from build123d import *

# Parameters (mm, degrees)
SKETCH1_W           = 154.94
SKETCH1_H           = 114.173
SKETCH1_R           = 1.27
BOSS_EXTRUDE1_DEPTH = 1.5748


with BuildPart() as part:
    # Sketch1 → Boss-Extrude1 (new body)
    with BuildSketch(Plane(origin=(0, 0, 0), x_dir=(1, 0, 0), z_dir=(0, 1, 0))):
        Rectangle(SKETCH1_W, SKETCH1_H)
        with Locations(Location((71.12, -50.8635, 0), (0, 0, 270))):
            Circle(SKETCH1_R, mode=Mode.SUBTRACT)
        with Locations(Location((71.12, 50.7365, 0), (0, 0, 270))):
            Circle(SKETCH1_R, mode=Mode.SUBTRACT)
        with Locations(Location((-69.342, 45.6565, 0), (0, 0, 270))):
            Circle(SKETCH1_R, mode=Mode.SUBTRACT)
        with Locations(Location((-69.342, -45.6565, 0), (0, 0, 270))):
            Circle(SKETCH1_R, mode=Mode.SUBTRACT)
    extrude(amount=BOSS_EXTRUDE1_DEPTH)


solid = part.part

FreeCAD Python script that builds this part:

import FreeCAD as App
import Part
import Sketcher
Q = App.Units.Quantity


def add_polygon(sketch, points):
    """Adds a closed chain of lines whose ends are joined by coincident constraints."""
    first, n = sketch.GeometryCount, len(points)
    for a, b in zip(points, points[1:] + points[:1]):
        sketch.addGeometry(Part.LineSegment(App.Vector(*a, 0), App.Vector(*b, 0)), False)
    for i in range(n):
        sketch.addConstraint(Sketcher.Constraint("Coincident", first + i, 2, first + (i + 1) % n, 1))

doc = App.newDocument("Part")
body = doc.addObject("PartDesign::Body", "Body")

sketch1 = body.newObject("Sketcher::SketchObject", "Sketch")
sketch1.AttachmentSupport = (doc.getObject("XZ_Plane"), [""])
sketch1.MapMode = "FlatFace"
add_polygon(sketch1, [(-77.5, -57.1), (-77.5, 57.1), (77.5, 57.1), (77.5, -57.1)])
sketch1.addGeometry(Part.Circle(App.Vector(-69.3, 45.7, 0), App.Vector(0, 0, 1), 1.3), False)
sketch1.addGeometry(Part.Circle(App.Vector(71.1, 50.9, 0), App.Vector(0, 0, 1), 1.3), False)
sketch1.addGeometry(Part.Circle(App.Vector(-69.3, -45.7, 0), App.Vector(0, 0, 1), 1.3), False)
sketch1.addGeometry(Part.Circle(App.Vector(71.1, -50.7, 0), App.Vector(0, 0, 1), 1.3), False)
sketch1.addConstraint([
    Sketcher.Constraint("Vertical", 0),
    Sketcher.Constraint("Horizontal", 1),
    Sketcher.Constraint("Vertical", 2),
    Sketcher.Constraint("Horizontal", 3),
    Sketcher.Constraint("Equal", 4, 5),
    Sketcher.Constraint("Equal", 5, 6),
    Sketcher.Constraint("Equal", 6, 7),
    Sketcher.Constraint("Symmetric", 0, 2, 2, 2, -1, 1),
    Sketcher.Constraint("Symmetric", 4, 3, 6, 3, -1),
    Sketcher.Constraint("Vertical", 5, 3, 7, 3),
    Sketcher.Constraint("Diameter", 4, Q("0.1 in")),
    Sketcher.Constraint("DistanceX", 1, 1, 1, 2, Q("6.1 in")),
    Sketcher.Constraint("DistanceY", 7, 3, 5, 3, Q("4 in")),
    Sketcher.Constraint("DistanceX", -1, 1, 5, 3, Q("2.8 in")),
    Sketcher.Constraint("DistanceY", 6, 3, 5, 3, Q("3.8 in")),
    Sketcher.Constraint("DistanceY", 0, 1, 0, 2, Q("4.495 in")),
    Sketcher.Constraint("DistanceX", 4, 3, -1, 1, Q("2.73 in")),
    Sketcher.Constraint("DistanceY", 4, 3, 0, 2, Q("0.45 in")),
])
pad1 = body.newObject("PartDesign::Pad", "Pad")
pad1.Profile = sketch1
pad1.Length = Q("0.062 in")
pad1.Reversed = True

doc.recompute()
